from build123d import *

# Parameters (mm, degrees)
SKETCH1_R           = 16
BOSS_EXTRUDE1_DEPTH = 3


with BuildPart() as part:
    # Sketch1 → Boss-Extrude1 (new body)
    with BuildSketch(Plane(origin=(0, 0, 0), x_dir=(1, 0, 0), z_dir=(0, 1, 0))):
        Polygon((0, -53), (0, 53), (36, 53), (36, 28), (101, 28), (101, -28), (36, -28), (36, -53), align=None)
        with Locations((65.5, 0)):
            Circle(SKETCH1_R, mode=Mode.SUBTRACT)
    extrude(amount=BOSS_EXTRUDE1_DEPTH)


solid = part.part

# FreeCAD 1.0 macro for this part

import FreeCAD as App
import Part
import Sketcher
Q = App.Units.Quantity

doc = App.newDocument("Part")
params = doc.addObject("Spreadsheet::Sheet", "Params")
for row, (alias, value) in enumerate([
    ("sketch1_diameter", "32 mm"),
    ("sketch1_width", "36 mm"),
    ("sketch1_width2", "65 mm"),
    ("sketch1_height", "106 mm"),
    ("sketch1_height2", "25 mm"),
    ("pad1_length", "3 mm"),
], start=1):
    params.set(f"A{row}", alias)
    params.set(f"B{row}", "=" + value)
    params.setAlias(f"B{row}", alias)

body = doc.addObject("PartDesign::Body", "Body")

sketch1 = body.newObject("Sketcher::SketchObject", "Sketch")
sketch1.AttachmentSupport = (doc.getObject("XZ_Plane"), [""])
sketch1.MapMode = "FlatFace"
sketch1.addGeometry([
    Part.LineSegment(App.Vector(0, -53, 0), App.Vector(0, 53, 0)),
    Part.LineSegment(App.Vector(0, 53, 0), App.Vector(36, 53, 0)),
    Part.LineSegment(App.Vector(36, 53, 0), App.Vector(36, 28, 0)),
    Part.LineSegment(App.Vector(36, 28, 0), App.Vector(101, 28, 0)),
    Part.LineSegment(App.Vector(101, 28, 0), App.Vector(101, -28, 0)),
    Part.LineSegment(App.Vector(101, -28, 0), App.Vector(36, -28, 0)),
    Part.LineSegment(App.Vector(36, -28, 0), App.Vector(36, -53, 0)),
    Part.LineSegment(App.Vector(36, -53, 0), App.Vector(0, -53, 0)),
    Part.Circle(App.Vector(65.5, 0, 0), App.Vector(0, 0, 1), 16),
], False)
sketch1.addConstraint([
    Sketcher.Constraint("Coincident", 0, 2, 1, 1),
    Sketcher.Constraint("Coincident", 1, 2, 2, 1),
    Sketcher.Constraint("Coincident", 2, 2, 3, 1),
    Sketcher.Constraint("Coincident", 3, 2, 4, 1),
    Sketcher.Constraint("Coincident", 4, 2, 5, 1),
    Sketcher.Constraint("Coincident", 5, 2, 6, 1),
    Sketcher.Constraint("Coincident", 6, 2, 7, 1),
    Sketcher.Constraint("Coincident", 7, 2, 0, 1),
    Sketcher.Constraint("Vertical", 0),
    Sketcher.Constraint("Horizontal", 1),
    Sketcher.Constraint("Vertical", 2),
    Sketcher.Constraint("Horizontal", 3),
    Sketcher.Constraint("Vertical", 4),
    Sketcher.Constraint("Horizontal", 5),
    Sketcher.Constraint("Vertical", 6),
    Sketcher.Constraint("Horizontal", 7),
    Sketcher.Constraint("Symmetric", 0, 2, 7, 2, -1, 1),
    Sketcher.Constraint("Symmetric", 2, 2, 5, 2, -1),
    Sketcher.Constraint("PointOnObject", 8, 3, -1),
    Sketcher.Constraint("Diameter", 8, Q("32 mm")),
    Sketcher.Constraint("DistanceX", 1, 1, 1, 2, Q("36 mm")),
    Sketcher.Constraint("DistanceX", 3, 1, 3, 2, Q("65 mm")),
    Sketcher.Constraint("DistanceY", 0, 1, 0, 2, Q("106 mm")),
    Sketcher.Constraint("DistanceY", 2, 2, 2, 1, Q("25 mm")),
    Sketcher.Constraint("DistanceX", -1, 1, 8, 3, Q("65.5 mm")),
])
sketch1.setExpression("Constraints[19]", "Params.sketch1_diameter")
sketch1.setExpression("Constraints[20]", "Params.sketch1_width")
sketch1.setExpression("Constraints[21]", "Params.sketch1_width2")
sketch1.setExpression("Constraints[22]", "Params.sketch1_height")
sketch1.setExpression("Constraints[23]", "Params.sketch1_height2")
pad1 = body.newObject("PartDesign::Pad", "Pad")
pad1.Profile = sketch1
pad1.setExpression("Length", "Params.pad1_length")
pad1.Reversed = True

doc.recompute()
